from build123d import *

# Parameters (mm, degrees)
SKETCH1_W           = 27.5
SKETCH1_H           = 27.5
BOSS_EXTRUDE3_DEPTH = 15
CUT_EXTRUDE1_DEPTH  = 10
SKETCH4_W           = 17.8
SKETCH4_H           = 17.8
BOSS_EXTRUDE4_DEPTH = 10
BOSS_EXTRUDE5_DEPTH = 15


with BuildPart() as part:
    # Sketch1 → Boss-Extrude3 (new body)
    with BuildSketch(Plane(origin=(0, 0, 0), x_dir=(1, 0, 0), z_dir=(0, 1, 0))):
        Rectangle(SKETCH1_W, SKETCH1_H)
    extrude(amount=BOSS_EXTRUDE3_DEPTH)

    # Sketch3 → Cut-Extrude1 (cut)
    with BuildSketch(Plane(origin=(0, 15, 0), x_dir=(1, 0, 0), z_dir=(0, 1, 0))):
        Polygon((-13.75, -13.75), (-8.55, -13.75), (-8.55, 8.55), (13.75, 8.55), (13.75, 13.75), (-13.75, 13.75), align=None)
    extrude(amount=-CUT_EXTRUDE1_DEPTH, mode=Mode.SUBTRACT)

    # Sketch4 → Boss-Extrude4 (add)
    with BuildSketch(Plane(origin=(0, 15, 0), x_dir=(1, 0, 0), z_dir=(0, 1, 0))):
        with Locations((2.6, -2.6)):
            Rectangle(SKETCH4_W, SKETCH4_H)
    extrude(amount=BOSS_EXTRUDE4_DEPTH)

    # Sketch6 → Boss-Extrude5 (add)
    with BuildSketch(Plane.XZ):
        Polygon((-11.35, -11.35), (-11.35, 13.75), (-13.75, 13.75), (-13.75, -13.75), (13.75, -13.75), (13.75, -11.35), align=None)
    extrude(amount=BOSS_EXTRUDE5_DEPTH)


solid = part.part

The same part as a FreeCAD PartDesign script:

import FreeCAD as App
import Part
import Sketcher
from FreeCAD import Vector


def add_polygon(sketch, points):
    """Adds a closed chain of lines whose ends are joined by coincident constraints."""
    first, n = sketch.GeometryCount, len(points)
    for a, b in zip(points, points[1:] + points[:1]):
        sketch.addGeometry(Part.LineSegment(App.Vector(*a, 0), App.Vector(*b, 0)), False)
    for i in range(n):
        sketch.addConstraint(Sketcher.Constraint("Coincident", first + i, 2, first + (i + 1) % n, 1))

doc = App.newDocument("Part")
body = doc.addObject("PartDesign::Body", "Body")

# Sketch on XZ plane
sketch1 = body.newObject("Sketcher::SketchObject", "Sketch")
sketch1.AttachmentSupport = (doc.getObject("XZ_Plane"), [""])
sketch1.MapMode = "FlatFace"
add_polygon(sketch1, [(-14, -14), (-14, 14), (14, 14), (14, -14)])  # lines 0-3
sketch1.addConstraint(Sketcher.Constraint("Vertical", 0))
sketch1.addConstraint(Sketcher.Constraint("Horizontal", 1))
sketch1.addConstraint(Sketcher.Constraint("Vertical", 2))
sketch1.addConstraint(Sketcher.Constraint("Horizontal", 3))
sketch1.addConstraint(Sketcher.Constraint("Symmetric", 0, 2, 2, 2, -1, 1))
sketch1.addConstraint(Sketcher.Constraint("Equal", 3, 0))
sketch1.addConstraint(Sketcher.Constraint("DistanceX", 1, 1, 1, 2, 27.5))
pad1 = body.newObject("PartDesign::Pad", "Pad")
pad1.Profile = sketch1
pad1.Length = 15
pad1.Reversed = True

# Sketch on XZ plane
sketch2 = body.newObject("Sketcher::SketchObject", "Sketch001")
sketch2.AttachmentSupport = (doc.getObject("XZ_Plane"), [""])
sketch2.MapMode = "FlatFace"
sketch2.AttachmentOffset = App.Placement(Vector(0, 0, -15), App.Rotation())
add_polygon(sketch2, [(-14, 14), (-9, 14), (-9, -9), (14, -9), (14, -14), (-14, -14)])  # lines 0-5
sketch2.addConstraint(Sketcher.Constraint("Horizontal", 0))
sketch2.addConstraint(Sketcher.Constraint("Vertical", 1))
sketch2.addConstraint(Sketcher.Constraint("Horizontal", 2))
sketch2.addConstraint(Sketcher.Constraint("Vertical", 3))
sketch2.addConstraint(Sketcher.Constraint("Horizontal", 4))
sketch2.addConstraint(Sketcher.Constraint("Vertical", 5))
sketch2.addConstraint(Sketcher.Constraint("Symmetric", 3, 2, 5, 2, -1, 1))
sketch2.addConstraint(Sketcher.Constraint("Equal", 2, 1))
sketch2.addConstraint(Sketcher.Constraint("Equal", 0, 3))
sketch2.addConstraint(Sketcher.Constraint("DistanceX", 0, 1, 0, 2, 5.2))
sketch2.addConstraint(Sketcher.Constraint("DistanceX", 2, 1, 2, 2, 22.3))
pocket1 = body.newObject("PartDesign::Pocket", "Pocket")
pocket1.Profile = sketch2
pocket1.Length = 10
pocket1.Reversed = True

# Sketch on XZ plane
sketch3 = body.newObject("Sketcher::SketchObject", "Sketch002")
sketch3.AttachmentSupport = (doc.getObject("XZ_Plane"), [""])
sketch3.MapMode = "FlatFace"
sketch3.AttachmentOffset = App.Placement(Vector(0, 0, -15), App.Rotation())
add_polygon(sketch3, [(-6, -6), (-6, 12), (12, 12), (12, -6)])  # lines 0-3
sketch3.addConstraint(Sketcher.Constraint("Vertical", 0))
sketch3.addConstraint(Sketcher.Constraint("Horizontal", 1))
sketch3.addConstraint(Sketcher.Constraint("Vertical", 2))
sketch3.addConstraint(Sketcher.Constraint("Horizontal", 3))
sketch3.addConstraint(Sketcher.Constraint("Equal", 3, 0))
sketch3.addConstraint(Sketcher.Constraint("DistanceX", 1, 1, 1, 2, 17.8))
sketch3.addConstraint(Sketcher.Constraint("DistanceX", 0, 2, -1, 1, 6.3))
sketch3.addConstraint(Sketcher.Constraint("DistanceY", -1, 1, 0, 2, 11.5))
pad2 = body.newObject("PartDesign::Pad", "Pad001")
pad2.Profile = sketch3
pad2.Length = 10
pad2.Reversed = True

# Sketch on XZ plane
sketch4 = body.newObject("Sketcher::SketchObject", "Sketch003")
sketch4.AttachmentSupport = (doc.getObject("XZ_Plane"), [""])
sketch4.MapMode = "FlatFace"
add_polygon(sketch4, [(-11.3, -11.3), (-11.3, 13.8), (-13.8, 13.8), (-13.8, -13.8), (13.8, -13.8), (13.8, -11.3)])  # lines 0-5
sketch4.addConstraint(Sketcher.Constraint("Vertical", 0))
sketch4.addConstraint(Sketcher.Constraint("Horizontal", 1))
sketch4.addConstraint(Sketcher.Constraint("Vertical", 2))
sketch4.addConstraint(Sketcher.Constraint("Horizontal", 3))
sketch4.addConstraint(Sketcher.Constraint("Vertical", 4))
sketch4.addConstraint(Sketcher.Constraint("Horizontal", 5))
sketch4.addConstraint(Sketcher.Constraint("Symmetric", 1, 2, 3, 2, -1, 1))
sketch4.addConstraint(Sketcher.Constraint("Equal", 5, 0))
sketch4.addConstraint(Sketcher.Constraint("Equal", 3, 2))
sketch4.addConstraint(Sketcher.Constraint("DistanceX", 1, 2, 1, 1, 2.4))
sketch4.addConstraint(Sketcher.Constraint("DistanceX", 3, 1, 3, 2, 27.5))
pad3 = body.newObject("PartDesign::Pad", "Pad002")
pad3.Profile = sketch4
pad3.Length = 15

doc.recompute()
